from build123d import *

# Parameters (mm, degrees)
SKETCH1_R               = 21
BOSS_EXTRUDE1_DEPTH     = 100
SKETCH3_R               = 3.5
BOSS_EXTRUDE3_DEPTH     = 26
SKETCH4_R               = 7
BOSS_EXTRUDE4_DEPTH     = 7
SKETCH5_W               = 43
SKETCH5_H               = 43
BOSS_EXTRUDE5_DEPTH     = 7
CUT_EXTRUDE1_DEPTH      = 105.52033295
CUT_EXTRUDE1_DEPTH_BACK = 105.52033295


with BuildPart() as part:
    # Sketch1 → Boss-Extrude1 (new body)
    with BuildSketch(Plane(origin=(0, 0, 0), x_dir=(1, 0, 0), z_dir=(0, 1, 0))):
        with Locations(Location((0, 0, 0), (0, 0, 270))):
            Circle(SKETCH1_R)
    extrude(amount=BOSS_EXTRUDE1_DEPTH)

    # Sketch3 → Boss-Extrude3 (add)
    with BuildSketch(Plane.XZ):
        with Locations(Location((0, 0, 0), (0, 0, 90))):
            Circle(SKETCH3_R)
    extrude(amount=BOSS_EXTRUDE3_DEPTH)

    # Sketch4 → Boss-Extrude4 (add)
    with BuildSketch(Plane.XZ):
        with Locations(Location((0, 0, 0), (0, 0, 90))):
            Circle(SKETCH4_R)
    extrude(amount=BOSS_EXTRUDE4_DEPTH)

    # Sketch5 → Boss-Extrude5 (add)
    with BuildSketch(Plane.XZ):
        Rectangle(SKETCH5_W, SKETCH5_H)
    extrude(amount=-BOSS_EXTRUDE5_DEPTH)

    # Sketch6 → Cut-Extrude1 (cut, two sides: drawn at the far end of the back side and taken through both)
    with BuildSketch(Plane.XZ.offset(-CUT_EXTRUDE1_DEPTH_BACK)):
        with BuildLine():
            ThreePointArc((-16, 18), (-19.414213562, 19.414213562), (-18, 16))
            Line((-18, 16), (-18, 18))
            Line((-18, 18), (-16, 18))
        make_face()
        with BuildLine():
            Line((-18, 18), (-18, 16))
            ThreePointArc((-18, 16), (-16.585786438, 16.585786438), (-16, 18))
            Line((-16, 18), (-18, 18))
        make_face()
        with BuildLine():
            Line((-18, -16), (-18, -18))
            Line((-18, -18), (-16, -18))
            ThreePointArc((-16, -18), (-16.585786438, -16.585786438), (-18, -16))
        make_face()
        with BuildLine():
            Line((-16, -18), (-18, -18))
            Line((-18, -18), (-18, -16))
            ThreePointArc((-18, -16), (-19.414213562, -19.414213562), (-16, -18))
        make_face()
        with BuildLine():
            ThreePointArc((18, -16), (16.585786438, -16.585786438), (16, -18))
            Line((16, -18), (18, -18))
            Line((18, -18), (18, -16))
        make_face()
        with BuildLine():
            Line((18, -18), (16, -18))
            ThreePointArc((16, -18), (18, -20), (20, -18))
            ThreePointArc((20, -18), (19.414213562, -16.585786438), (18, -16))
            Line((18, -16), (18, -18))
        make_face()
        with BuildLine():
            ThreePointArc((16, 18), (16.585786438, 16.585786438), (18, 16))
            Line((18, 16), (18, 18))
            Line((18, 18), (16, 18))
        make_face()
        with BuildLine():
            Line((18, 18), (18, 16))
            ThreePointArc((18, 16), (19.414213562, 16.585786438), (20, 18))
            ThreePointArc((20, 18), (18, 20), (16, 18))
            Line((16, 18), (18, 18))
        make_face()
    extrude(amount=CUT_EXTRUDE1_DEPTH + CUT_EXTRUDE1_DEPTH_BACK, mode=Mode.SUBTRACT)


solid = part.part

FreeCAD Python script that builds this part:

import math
import FreeCAD as App
import Part
import Sketcher

doc = App.newDocument("Part")
params = doc.addObject("Spreadsheet::Sheet", "Params")
for row, (alias, value) in enumerate([
    ("sketch1_diameter", "42 mm"),
    ("pad1_length", "100 mm"),
    ("sketch2_diameter", "7 mm"),
    ("pad2_length", "26 mm"),
    ("sketch3_diameter", "14 mm"),
    ("pad3_length", "7 mm"),
    ("sketch4_width", "43 mm"),
    ("pad4_length", "7 mm"),
    ("sketch5_radius", "2 mm"),
], start=1):
    params.set(f"A{row}", alias)
    params.set(f"B{row}", "=" + value)
    params.setAlias(f"B{row}", alias)

body = doc.addObject("PartDesign::Body", "Body")

sketch1 = doc.addObject("Sketcher::SketchObject", "Sketch")
body.addObject(sketch1)
sketch1.AttachmentSupport = (doc.XZ_Plane, [""])
sketch1.MapMode = "FlatFace"
sketch1.addGeometry(Part.Circle(App.Vector(0, 0, 0), App.Vector(0, 0, 1), 21), False)
sketch1.addConstraint(Sketcher.Constraint("Coincident", 0, 3, -1, 1))
sketch1.addConstraint(Sketcher.Constraint("Diameter", 0, 42.0))
sketch1.setExpression("Constraints[1]", "Params.sketch1_diameter")
pad1 = doc.addObject("PartDesign::Pad", "Pad")
body.addObject(pad1)
pad1.Profile = sketch1
pad1.setExpression("Length", "Params.pad1_length")
pad1.Reversed = True

sketch2 = doc.addObject("Sketcher::SketchObject", "Sketch001")
body.addObject(sketch2)
sketch2.AttachmentSupport = (doc.XZ_Plane, [""])
sketch2.MapMode = "FlatFace"
sketch2.addGeometry(Part.Circle(App.Vector(0, 0, 0), App.Vector(0, 0, 1), 3.5), False)
sketch2.addConstraint(Sketcher.Constraint("Coincident", 0, 3, -1, 1))
sketch2.addConstraint(Sketcher.Constraint("Diameter", 0, 7.0))
sketch2.setExpression("Constraints[1]", "Params.sketch2_diameter")
pad2 = doc.addObject("PartDesign::Pad", "Pad001")
body.addObject(pad2)
pad2.Profile = sketch2
pad2.setExpression("Length", "Params.pad2_length")

sketch3 = doc.addObject("Sketcher::SketchObject", "Sketch002")
body.addObject(sketch3)
sketch3.AttachmentSupport = (doc.XZ_Plane, [""])
sketch3.MapMode = "FlatFace"
sketch3.addGeometry(Part.Circle(App.Vector(0, 0, 0), App.Vector(0, 0, 1), 7), False)
sketch3.addConstraint(Sketcher.Constraint("Coincident", 0, 3, -1, 1))
sketch3.addConstraint(Sketcher.Constraint("Diameter", 0, 14.0))
sketch3.setExpression("Constraints[1]", "Params.sketch3_diameter")
pad3 = doc.addObject("PartDesign::Pad", "Pad002")
body.addObject(pad3)
pad3.Profile = sketch3
pad3.setExpression("Length", "Params.pad3_length")

sketch4 = doc.addObject("Sketcher::SketchObject", "Sketch003")
body.addObject(sketch4)
sketch4.AttachmentSupport = (doc.XZ_Plane, [""])
sketch4.MapMode = "FlatFace"
sketch4.addGeometry(Part.LineSegment(App.Vector(-22, 22, 0), App.Vector(-22, -22, 0)), False)
sketch4.addGeometry(Part.LineSegment(App.Vector(-22, -22, 0), App.Vector(22, -22, 0)), False)
sketch4.addGeometry(Part.LineSegment(App.Vector(22, -22, 0), App.Vector(22, 22, 0)), False)
sketch4.addGeometry(Part.LineSegment(App.Vector(22, 22, 0), App.Vector(-22, 22, 0)), False)
sketch4.addConstraint(Sketcher.Constraint("Coincident", 0, 2, 1, 1))
sketch4.addConstraint(Sketcher.Constraint("Coincident", 1, 2, 2, 1))
sketch4.addConstraint(Sketcher.Constraint("Coincident", 2, 2, 3, 1))
sketch4.addConstraint(Sketcher.Constraint("Coincident", 3, 2, 0, 1))
sketch4.addConstraint(Sketcher.Constraint("Vertical", 0))
sketch4.addConstraint(Sketcher.Constraint("Horizontal", 1))
sketch4.addConstraint(Sketcher.Constraint("Vertical", 2))
sketch4.addConstraint(Sketcher.Constraint("Horizontal", 3))
sketch4.addConstraint(Sketcher.Constraint("Symmetric", 0, 2, 2, 2, -1, 1))
sketch4.addConstraint(Sketcher.Constraint("Equal", 3, 0))
sketch4.addConstraint(Sketcher.Constraint("DistanceX", 1, 1, 1, 2, 43.0))
sketch4.setExpression("Constraints[10]", "Params.sketch4_width")
pad4 = doc.addObject("PartDesign::Pad", "Pad003")
body.addObject(pad4)
pad4.Profile = sketch4
pad4.setExpression("Length", "Params.pad4_length")
pad4.Reversed = True

sketch5 = doc.addObject("Sketcher::SketchObject", "Sketch004")
body.addObject(sketch5)
sketch5.AttachmentSupport = (doc.XZ_Plane, [""])
sketch5.MapMode = "FlatFace"
sketch5.addGeometry(Part.ArcOfCircle(Part.Circle(App.Vector(-18, 18, 0), App.Vector(0, 0, 1), 2), math.radians(0), math.radians(270)), False)
sketch5.addGeometry(Part.ArcOfCircle(Part.Circle(App.Vector(-18, 18, 0), App.Vector(0, 0, 1), 2), math.radians(-90), math.radians(0)), False)
sketch5.addGeometry(Part.ArcOfCircle(Part.Circle(App.Vector(-18, -18, 0), App.Vector(0, 0, 1), 2), math.radians(0), math.radians(90)), False)
sketch5.addGeometry(Part.ArcOfCircle(Part.Circle(App.Vector(-18, -18, 0), App.Vector(0, 0, 1), 2), math.radians(90), math.radians(360)), False)
sketch5.addGeometry(Part.ArcOfCircle(Part.Circle(App.Vector(18, -18, 0), App.Vector(0, 0, 1), 2), math.radians(90), math.radians(180)), False)
sketch5.addGeometry(Part.ArcOfCircle(Part.Circle(App.Vector(18, -18, 0), App.Vector(0, 0, 1), 2), math.radians(180), math.radians(360)), False)
sketch5.addGeometry(Part.ArcOfCircle(Part.Circle(App.Vector(18, -18, 0), App.Vector(0, 0, 1), 2), math.radians(0), math.radians(90)), False)
sketch5.addGeometry(Part.ArcOfCircle(Part.Circle(App.Vector(18, 18, 0), App.Vector(0, 0, 1), 2), math.radians(-180), math.radians(-90)), False)
sketch5.addGeometry(Part.ArcOfCircle(Part.Circle(App.Vector(18, 18, 0), App.Vector(0, 0, 1), 2), math.radians(-90), math.radians(0)), False)
sketch5.addGeometry(Part.ArcOfCircle(Part.Circle(App.Vector(18, 18, 0), App.Vector(0, 0, 1), 2), math.radians(0), math.radians(180)), False)
sketch5.addConstraint(Sketcher.Constraint("Tangent", 0, 1, 1, 2))
sketch5.addConstraint(Sketcher.Constraint("Coincident", 1, 1, 0, 2))
sketch5.addConstraint(Sketcher.Constraint("Tangent", 2, 1, 3, 2))
sketch5.addConstraint(Sketcher.Constraint("Coincident", 3, 1, 2, 2))
sketch5.addConstraint(Sketcher.Constraint("Tangent", 4, 2, 5, 1))
sketch5.addConstraint(Sketcher.Constraint("Tangent", 5, 2, 6, 1))
sketch5.addConstraint(Sketcher.Constraint("Tangent", 6, 2, 4, 1))
sketch5.addConstraint(Sketcher.Constraint("Tangent", 7, 2, 8, 1))
sketch5.addConstraint(Sketcher.Constraint("Tangent", 8, 2, 9, 1))
sketch5.addConstraint(Sketcher.Constraint("Tangent", 9, 2, 7, 1))
sketch5.addConstraint(Sketcher.Constraint("Equal", 1, 2))
sketch5.addConstraint(Sketcher.Constraint("Equal", 3, 4))
sketch5.addConstraint(Sketcher.Constraint("Equal", 6, 7))
sketch5.addConstraint(Sketcher.Constraint("Symmetric", 0, 3, 4, 3, -1, 1))
sketch5.addConstraint(Sketcher.Constraint("Symmetric", 2, 3, 7, 3, -1, 1))
sketch5.addConstraint(Sketcher.Constraint("Symmetric", 2, 3, 4, 3, -2))
sketch5.addConstraint(Sketcher.Constraint("Horizontal", 9, 3, 0, 1))
sketch5.addConstraint(Sketcher.Constraint("Horizontal", 6, 3, 2, 1))
sketch5.addConstraint(Sketcher.Constraint("Horizontal", 2, 1, 4, 2))
sketch5.addConstraint(Sketcher.Constraint("Horizontal", 4, 2, 5, 2))
sketch5.addConstraint(Sketcher.Constraint("Horizontal", 0, 1, 8, 2))
sketch5.addConstraint(Sketcher.Constraint("Horizontal", 8, 2, 9, 2))
sketch5.addConstraint(Sketcher.Constraint("Vertical", 3, 3, 1, 1))
sketch5.addConstraint(Sketcher.Constraint("Vertical", 1, 1, 3, 1))
sketch5.addConstraint(Sketcher.Constraint("Vertical", 9, 3, 6, 2))
sketch5.addConstraint(Sketcher.Constraint("Vertical", 6, 2, 7, 2))
sketch5.addConstraint(Sketcher.Constraint("Radius", 0, 2.0))
sketch5.addConstraint(Sketcher.Constraint("DistanceX", 0, 3, -1, 1, 18.0))
sketch5.addConstraint(Sketcher.Constraint("DistanceY", -1, 1, 0, 3, 18.0))
sketch5.setExpression("Constraints[26]", "Params.sketch5_radius")
pocket1 = doc.addObject("PartDesign::Pocket", "Pocket")
body.addObject(pocket1)
pocket1.Profile = sketch5
pocket1.Type = "ThroughAll"
pocket1.Midplane = True

doc.recompute()
